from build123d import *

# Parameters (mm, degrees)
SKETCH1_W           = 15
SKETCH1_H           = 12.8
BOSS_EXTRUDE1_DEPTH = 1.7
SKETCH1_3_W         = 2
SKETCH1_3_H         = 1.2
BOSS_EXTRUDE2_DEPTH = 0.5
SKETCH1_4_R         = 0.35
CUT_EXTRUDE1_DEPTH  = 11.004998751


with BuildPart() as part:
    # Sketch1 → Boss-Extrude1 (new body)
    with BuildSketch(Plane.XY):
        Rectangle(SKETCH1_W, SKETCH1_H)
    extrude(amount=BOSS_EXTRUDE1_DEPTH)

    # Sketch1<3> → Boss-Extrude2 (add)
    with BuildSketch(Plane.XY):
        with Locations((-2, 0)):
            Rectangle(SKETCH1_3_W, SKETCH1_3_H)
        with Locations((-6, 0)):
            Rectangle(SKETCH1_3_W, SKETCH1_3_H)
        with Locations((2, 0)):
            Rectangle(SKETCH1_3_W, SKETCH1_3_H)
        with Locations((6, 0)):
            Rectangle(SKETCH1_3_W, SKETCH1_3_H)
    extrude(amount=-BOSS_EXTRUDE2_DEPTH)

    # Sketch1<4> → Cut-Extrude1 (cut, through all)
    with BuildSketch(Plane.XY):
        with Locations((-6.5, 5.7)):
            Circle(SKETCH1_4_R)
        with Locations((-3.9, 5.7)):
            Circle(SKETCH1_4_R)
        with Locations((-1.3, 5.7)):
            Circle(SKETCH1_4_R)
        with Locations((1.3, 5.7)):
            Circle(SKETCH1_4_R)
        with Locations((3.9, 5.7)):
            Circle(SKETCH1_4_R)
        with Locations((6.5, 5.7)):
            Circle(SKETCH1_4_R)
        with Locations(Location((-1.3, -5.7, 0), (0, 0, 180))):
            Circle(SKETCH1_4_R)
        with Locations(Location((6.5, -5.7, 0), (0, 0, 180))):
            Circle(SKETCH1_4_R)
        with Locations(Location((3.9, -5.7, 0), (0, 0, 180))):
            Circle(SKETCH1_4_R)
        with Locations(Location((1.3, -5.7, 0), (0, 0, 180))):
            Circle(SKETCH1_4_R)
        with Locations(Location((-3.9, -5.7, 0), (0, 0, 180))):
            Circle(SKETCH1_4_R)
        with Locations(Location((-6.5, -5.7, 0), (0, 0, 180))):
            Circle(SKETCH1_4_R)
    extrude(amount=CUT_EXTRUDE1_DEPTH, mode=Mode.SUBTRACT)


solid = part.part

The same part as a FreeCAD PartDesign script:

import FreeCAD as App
import Part
import Sketcher

doc = App.newDocument("Part")
body = doc.addObject("PartDesign::Body", "Body")

# Sketch on XY plane
sketch1 = doc.addObject("Sketcher::SketchObject", "Sketch")
body.addObject(sketch1)
sketch1.AttachmentSupport = (doc.XY_Plane, [""])
sketch1.MapMode = "FlatFace"
sketch1.addGeometry(Part.LineSegment(App.Vector(-8, 6, 0), App.Vector(-8, -6, 0)), False)
sketch1.addGeometry(Part.LineSegment(App.Vector(-8, -6, 0), App.Vector(8, -6, 0)), False)
sketch1.addGeometry(Part.LineSegment(App.Vector(8, -6, 0), App.Vector(8, 6, 0)), False)
sketch1.addGeometry(Part.LineSegment(App.Vector(8, 6, 0), App.Vector(-8, 6, 0)), False)
sketch1.addConstraint(Sketcher.Constraint("Coincident", 0, 2, 1, 1))
sketch1.addConstraint(Sketcher.Constraint("Coincident", 1, 2, 2, 1))
sketch1.addConstraint(Sketcher.Constraint("Coincident", 2, 2, 3, 1))
sketch1.addConstraint(Sketcher.Constraint("Coincident", 3, 2, 0, 1))
sketch1.addConstraint(Sketcher.Constraint("Vertical", 0))
sketch1.addConstraint(Sketcher.Constraint("Horizontal", 1))
sketch1.addConstraint(Sketcher.Constraint("Vertical", 2))
sketch1.addConstraint(Sketcher.Constraint("Horizontal", 3))
sketch1.addConstraint(Sketcher.Constraint("Symmetric", 0, 2, 2, 2, -1, 1))
sketch1.addConstraint(Sketcher.Constraint("DistanceX", 1, 1, 1, 2, 15.0))
sketch1.addConstraint(Sketcher.Constraint("DistanceY", 0, 2, 0, 1, 12.8))
pad1 = doc.addObject("PartDesign::Pad", "Pad")
body.addObject(pad1)
pad1.Profile = sketch1
pad1.Length = 1.7

# Sketch on XY plane
sketch2 = doc.addObject("Sketcher::SketchObject", "Sketch001")
body.addObject(sketch2)
sketch2.AttachmentSupport = (doc.XY_Plane, [""])
sketch2.MapMode = "FlatFace"
sketch2.addGeometry(Part.LineSegment(App.Vector(-3, 0.6, 0), App.Vector(-3, -0.6, 0)), False)
sketch2.addGeometry(Part.LineSegment(App.Vector(-3, -0.6, 0), App.Vector(-1, -0.6, 0)), False)
sketch2.addGeometry(Part.LineSegment(App.Vector(-1, -0.6, 0), App.Vector(-1, 0.6, 0)), False)
sketch2.addGeometry(Part.LineSegment(App.Vector(-1, 0.6, 0), App.Vector(-3, 0.6, 0)), False)
sketch2.addGeometry(Part.LineSegment(App.Vector(-7, 0.6, 0), App.Vector(-7, -0.6, 0)), False)
sketch2.addGeometry(Part.LineSegment(App.Vector(-7, -0.6, 0), App.Vector(-5, -0.6, 0)), False)
sketch2.addGeometry(Part.LineSegment(App.Vector(-5, -0.6, 0), App.Vector(-5, 0.6, 0)), False)
sketch2.addGeometry(Part.LineSegment(App.Vector(-5, 0.6, 0), App.Vector(-7, 0.6, 0)), False)
sketch2.addGeometry(Part.LineSegment(App.Vector(1, 0.6, 0), App.Vector(1, -0.6, 0)), False)
sketch2.addGeometry(Part.LineSegment(App.Vector(1, -0.6, 0), App.Vector(3, -0.6, 0)), False)
sketch2.addGeometry(Part.LineSegment(App.Vector(3, -0.6, 0), App.Vector(3, 0.6, 0)), False)
sketch2.addGeometry(Part.LineSegment(App.Vector(3, 0.6, 0), App.Vector(1, 0.6, 0)), False)
sketch2.addGeometry(Part.LineSegment(App.Vector(5, 0.6, 0), App.Vector(5, -0.6, 0)), False)
sketch2.addGeometry(Part.LineSegment(App.Vector(5, -0.6, 0), App.Vector(7, -0.6, 0)), False)
sketch2.addGeometry(Part.LineSegment(App.Vector(7, -0.6, 0), App.Vector(7, 0.6, 0)), False)
sketch2.addGeometry(Part.LineSegment(App.Vector(7, 0.6, 0), App.Vector(5, 0.6, 0)), False)
sketch2.addConstraint(Sketcher.Constraint("Coincident", 0, 2, 1, 1))
sketch2.addConstraint(Sketcher.Constraint("Coincident", 1, 2, 2, 1))
sketch2.addConstraint(Sketcher.Constraint("Coincident", 2, 2, 3, 1))
sketch2.addConstraint(Sketcher.Constraint("Coincident", 3, 2, 0, 1))
sketch2.addConstraint(Sketcher.Constraint("Coincident", 4, 2, 5, 1))
sketch2.addConstraint(Sketcher.Constraint("Coincident", 5, 2, 6, 1))
sketch2.addConstraint(Sketcher.Constraint("Coincident", 6, 2, 7, 1))
sketch2.addConstraint(Sketcher.Constraint("Coincident", 7, 2, 4, 1))
sketch2.addConstraint(Sketcher.Constraint("Coincident", 8, 2, 9, 1))
sketch2.addConstraint(Sketcher.Constraint("Coincident", 9, 2, 10, 1))
sketch2.addConstraint(Sketcher.Constraint("Coincident", 10, 2, 11, 1))
sketch2.addConstraint(Sketcher.Constraint("Coincident", 11, 2, 8, 1))
sketch2.addConstraint(Sketcher.Constraint("Coincident", 12, 2, 13, 1))
sketch2.addConstraint(Sketcher.Constraint("Coincident", 13, 2, 14, 1))
sketch2.addConstraint(Sketcher.Constraint("Coincident", 14, 2, 15, 1))
sketch2.addConstraint(Sketcher.Constraint("Coincident", 15, 2, 12, 1))
sketch2.addConstraint(Sketcher.Constraint("Vertical", 0))
sketch2.addConstraint(Sketcher.Constraint("Horizontal", 1))
sketch2.addConstraint(Sketcher.Constraint("Vertical", 2))
sketch2.addConstraint(Sketcher.Constraint("Horizontal", 3))
sketch2.addConstraint(Sketcher.Constraint("Vertical", 4))
sketch2.addConstraint(Sketcher.Constraint("Horizontal", 5))
sketch2.addConstraint(Sketcher.Constraint("Vertical", 6))
sketch2.addConstraint(Sketcher.Constraint("Horizontal", 7))
sketch2.addConstraint(Sketcher.Constraint("Vertical", 8))
sketch2.addConstraint(Sketcher.Constraint("Horizontal", 9))
sketch2.addConstraint(Sketcher.Constraint("Vertical", 10))
sketch2.addConstraint(Sketcher.Constraint("Horizontal", 11))
sketch2.addConstraint(Sketcher.Constraint("Vertical", 12))
sketch2.addConstraint(Sketcher.Constraint("Horizontal", 13))
sketch2.addConstraint(Sketcher.Constraint("Vertical", 14))
sketch2.addConstraint(Sketcher.Constraint("Horizontal", 15))
sketch2.addConstraint(Sketcher.Constraint("Symmetric", 2, 2, 8, 2, -1, 1))
sketch2.addConstraint(Sketcher.Constraint("Symmetric", 0, 2, 10, 2, -1, 1))
sketch2.addConstraint(Sketcher.Constraint("Symmetric", 6, 2, 12, 2, -1, 1))
sketch2.addConstraint(Sketcher.Constraint("Symmetric", 4, 2, 14, 2, -1, 1))
sketch2.addConstraint(Sketcher.Constraint("Horizontal", 1, 2, 4, 2))
sketch2.addConstraint(Sketcher.Constraint("Horizontal", 3, 2, 6, 2))
sketch2.addConstraint(Sketcher.Constraint("Horizontal", 5, 2, 8, 2))
sketch2.addConstraint(Sketcher.Constraint("Equal", 3, 5))
sketch2.addConstraint(Sketcher.Constraint("DistanceX", 1, 1, 1, 2, 2.0))
sketch2.addConstraint(Sketcher.Constraint("DistanceY", 0, 2, 0, 1, 1.2))
sketch2.addConstraint(Sketcher.Constraint("DistanceX", 0, 2, -1, 1, 3.0))
sketch2.addConstraint(Sketcher.Constraint("DistanceX", 4, 2, -1, 1, 7.0))
pad2 = doc.addObject("PartDesign::Pad", "Pad001")
body.addObject(pad2)
pad2.Profile = sketch2
pad2.Length = 0.5
pad2.Reversed = True

# Sketch on XY plane
sketch3 = doc.addObject("Sketcher::SketchObject", "Sketch002")
body.addObject(sketch3)
sketch3.AttachmentSupport = (doc.XY_Plane, [""])
sketch3.MapMode = "FlatFace"
sketch3.addGeometry(Part.Circle(App.Vector(-6.5, 5.7, 0), App.Vector(0, 0, 1), 0.35), False)
sketch3.addGeometry(Part.Circle(App.Vector(-3.9, 5.7, 0), App.Vector(0, 0, 1), 0.35), False)
sketch3.addGeometry(Part.Circle(App.Vector(-1.3, 5.7, 0), App.Vector(0, 0, 1), 0.35), False)
sketch3.addGeometry(Part.Circle(App.Vector(1.3, 5.7, 0), App.Vector(0, 0, 1), 0.35), False)
sketch3.addGeometry(Part.Circle(App.Vector(3.9, 5.7, 0), App.Vector(0, 0, 1), 0.35), False)
sketch3.addGeometry(Part.Circle(App.Vector(6.5, 5.7, 0), App.Vector(0, 0, 1), 0.35), False)
sketch3.addGeometry(Part.Circle(App.Vector(-1.3, -5.7, 0), App.Vector(0, 0, 1), 0.35), False)
sketch3.addGeometry(Part.Circle(App.Vector(6.5, -5.7, 0), App.Vector(0, 0, 1), 0.35), False)
sketch3.addGeometry(Part.Circle(App.Vector(3.9, -5.7, 0), App.Vector(0, 0, 1), 0.35), False)
sketch3.addGeometry(Part.Circle(App.Vector(1.3, -5.7, 0), App.Vector(0, 0, 1), 0.35), False)
sketch3.addGeometry(Part.Circle(App.Vector(-3.9, -5.7, 0), App.Vector(0, 0, 1), 0.35), False)
sketch3.addGeometry(Part.Circle(App.Vector(-6.5, -5.7, 0), App.Vector(0, 0, 1), 0.35), False)
sketch3.addConstraint(Sketcher.Constraint("Equal", 0, 1))
sketch3.addConstraint(Sketcher.Constraint("Equal", 1, 2))
sketch3.addConstraint(Sketcher.Constraint("Equal", 2, 3))
sketch3.addConstraint(Sketcher.Constraint("Equal", 3, 4))
sketch3.addConstraint(Sketcher.Constraint("Equal", 4, 5))
sketch3.addConstraint(Sketcher.Constraint("Equal", 5, 6))
sketch3.addConstraint(Sketcher.Constraint("Equal", 6, 7))
sketch3.addConstraint(Sketcher.Constraint("Equal", 7, 8))
sketch3.addConstraint(Sketcher.Constraint("Equal", 8, 9))
sketch3.addConstraint(Sketcher.Constraint("Equal", 9, 10))
sketch3.addConstraint(Sketcher.Constraint("Equal", 10, 11))
sketch3.addConstraint(Sketcher.Constraint("Symmetric", 3, 3, 6, 3, -1, 1))
sketch3.addConstraint(Sketcher.Constraint("Symmetric", 0, 3, 7, 3, -1, 1))
sketch3.addConstraint(Sketcher.Constraint("Symmetric", 1, 3, 8, 3, -1, 1))
sketch3.addConstraint(Sketcher.Constraint("Symmetric", 2, 3, 9, 3, -1, 1))
sketch3.addConstraint(Sketcher.Constraint("Symmetric", 4, 3, 10, 3, -1, 1))
sketch3.addConstraint(Sketcher.Constraint("Symmetric", 5, 3, 11, 3, -1, 1))
sketch3.addConstraint(Sketcher.Constraint("Symmetric", 2, 3, 3, 3, -2))
sketch3.addConstraint(Sketcher.Constraint("Symmetric", 1, 3, 4, 3, -2))
sketch3.addConstraint(Sketcher.Constraint("Symmetric", 0, 3, 5, 3, -2))
sketch3.addConstraint(Sketcher.Constraint("Horizontal", 0, 3, 1, 3))
sketch3.addConstraint(Sketcher.Constraint("Horizontal", 1, 3, 2, 3))
sketch3.addConstraint(Sketcher.Constraint("Diameter", 0, 0.7))
sketch3.addConstraint(Sketcher.Constraint("DistanceX", 0, 3, 5, 3, 13.0))
sketch3.addConstraint(Sketcher.Constraint("DistanceY", -1, 1, 0, 3, 5.7))
sketch3.addConstraint(Sketcher.Constraint("DistanceX", 1, 3, -1, 1, 3.9))
sketch3.addConstraint(Sketcher.Constraint("DistanceX", 2, 3, -1, 1, 1.3))
pocket1 = doc.addObject("PartDesign::Pocket", "Pocket")
body.addObject(pocket1)
pocket1.Profile = sketch3
pocket1.Type = "ThroughAll"
pocket1.Reversed = True

doc.recompute()
